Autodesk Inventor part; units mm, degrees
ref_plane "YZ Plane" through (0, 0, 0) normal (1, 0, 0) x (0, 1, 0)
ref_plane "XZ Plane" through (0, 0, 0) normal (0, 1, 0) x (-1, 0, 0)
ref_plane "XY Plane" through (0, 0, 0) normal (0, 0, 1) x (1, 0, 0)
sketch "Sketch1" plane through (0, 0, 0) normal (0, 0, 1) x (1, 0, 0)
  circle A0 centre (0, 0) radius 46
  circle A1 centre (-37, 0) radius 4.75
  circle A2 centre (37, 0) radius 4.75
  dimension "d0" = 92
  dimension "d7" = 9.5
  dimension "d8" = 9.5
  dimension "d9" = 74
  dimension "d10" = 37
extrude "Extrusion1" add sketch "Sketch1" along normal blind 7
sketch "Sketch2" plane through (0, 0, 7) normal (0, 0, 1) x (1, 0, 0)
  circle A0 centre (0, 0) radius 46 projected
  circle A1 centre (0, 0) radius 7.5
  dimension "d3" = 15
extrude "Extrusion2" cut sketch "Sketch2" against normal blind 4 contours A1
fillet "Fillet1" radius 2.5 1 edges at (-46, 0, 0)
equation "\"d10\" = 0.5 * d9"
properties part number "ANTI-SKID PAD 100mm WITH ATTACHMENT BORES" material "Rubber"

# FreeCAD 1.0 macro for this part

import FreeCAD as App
import Part
import Sketcher


def edges_at(feature, points):
    """Names of the edges that pass closest to the given points."""
    edges = feature.Shape.Edges
    near = lambda p: min(range(len(edges)), key=lambda i: edges[i].distToShape(Part.Vertex(*p))[0])
    return sorted({f"Edge{near(p) + 1}" for p in points})

doc = App.newDocument("Part")
params = doc.addObject("Spreadsheet::Sheet", "Params")
for row, (alias, value) in enumerate([
    ("sketch1_diameter", "92 mm"),
    ("sketch1_diameter2", "9.5 mm"),
    ("pad1_length", "7 mm"),
    ("sketch2_diameter", "15 mm"),
    ("pocket1_length", "4 mm"),
    ("fillet_radius", "2.5 mm"),
], start=1):
    params.set(f"A{row}", alias)
    params.set(f"B{row}", "=" + value)
    params.setAlias(f"B{row}", alias)

body = doc.addObject("PartDesign::Body", "Body")

# Sketch on XY plane
sketch1 = doc.addObject("Sketcher::SketchObject", "Sketch")
body.addObject(sketch1)
sketch1.AttachmentSupport = (doc.XY_Plane, [""])
sketch1.MapMode = "FlatFace"
sketch1.addGeometry([
    Part.Circle(App.Vector(0, 0, 0), App.Vector(0, 0, 1), 46),
    Part.Circle(App.Vector(-37, 0, 0), App.Vector(0, 0, 1), 4.75),
    Part.Circle(App.Vector(37, 0, 0), App.Vector(0, 0, 1), 4.75),
], False)
sketch1.addConstraint([
    Sketcher.Constraint("Coincident", 0, 3, -1, 1),
    Sketcher.Constraint("Equal", 1, 2),
    Sketcher.Constraint("Symmetric", 1, 3, 2, 3, -1, 1),
    Sketcher.Constraint("PointOnObject", 1, 3, -1),
    Sketcher.Constraint("Diameter", 0, 92.0),
    Sketcher.Constraint("Diameter", 1, 9.5),
    Sketcher.Constraint("DistanceX", 1, 3, -1, 1, 37.0),
])
sketch1.setExpression("Constraints[4]", "Params.sketch1_diameter")
sketch1.setExpression("Constraints[5]", "Params.sketch1_diameter2")
pad1 = doc.addObject("PartDesign::Pad", "Pad")
body.addObject(pad1)
pad1.Profile = sketch1
pad1.setExpression("Length", "Params.pad1_length")

# Sketch on XY plane
sketch2 = doc.addObject("Sketcher::SketchObject", "Sketch001")
body.addObject(sketch2)
sketch2.AttachmentSupport = (doc.XY_Plane, [""])
sketch2.MapMode = "FlatFace"
sketch2.AttachmentOffset = App.Placement(App.Vector(0, 0, 7), App.Rotation())
sketch2.addGeometry(Part.Circle(App.Vector(0, 0, 0), App.Vector(0, 0, 1), 7.5), False)
sketch2.addConstraint([
    Sketcher.Constraint("Coincident", 0, 3, -1, 1),
    Sketcher.Constraint("Diameter", 0, 15.0),
])
sketch2.setExpression("Constraints[1]", "Params.sketch2_diameter")
pocket1 = doc.addObject("PartDesign::Pocket", "Pocket")
body.addObject(pocket1)
pocket1.Profile = sketch2
pocket1.setExpression("Length", "Params.pocket1_length")
doc.recompute()

fillet = doc.addObject("PartDesign::Fillet", "Fillet")
body.addObject(fillet)
fillet.Base = (pocket1, edges_at(pocket1, [(-46, 0, 0)]))
fillet.setExpression("Radius", "Params.fillet_radius")

doc.recompute()
